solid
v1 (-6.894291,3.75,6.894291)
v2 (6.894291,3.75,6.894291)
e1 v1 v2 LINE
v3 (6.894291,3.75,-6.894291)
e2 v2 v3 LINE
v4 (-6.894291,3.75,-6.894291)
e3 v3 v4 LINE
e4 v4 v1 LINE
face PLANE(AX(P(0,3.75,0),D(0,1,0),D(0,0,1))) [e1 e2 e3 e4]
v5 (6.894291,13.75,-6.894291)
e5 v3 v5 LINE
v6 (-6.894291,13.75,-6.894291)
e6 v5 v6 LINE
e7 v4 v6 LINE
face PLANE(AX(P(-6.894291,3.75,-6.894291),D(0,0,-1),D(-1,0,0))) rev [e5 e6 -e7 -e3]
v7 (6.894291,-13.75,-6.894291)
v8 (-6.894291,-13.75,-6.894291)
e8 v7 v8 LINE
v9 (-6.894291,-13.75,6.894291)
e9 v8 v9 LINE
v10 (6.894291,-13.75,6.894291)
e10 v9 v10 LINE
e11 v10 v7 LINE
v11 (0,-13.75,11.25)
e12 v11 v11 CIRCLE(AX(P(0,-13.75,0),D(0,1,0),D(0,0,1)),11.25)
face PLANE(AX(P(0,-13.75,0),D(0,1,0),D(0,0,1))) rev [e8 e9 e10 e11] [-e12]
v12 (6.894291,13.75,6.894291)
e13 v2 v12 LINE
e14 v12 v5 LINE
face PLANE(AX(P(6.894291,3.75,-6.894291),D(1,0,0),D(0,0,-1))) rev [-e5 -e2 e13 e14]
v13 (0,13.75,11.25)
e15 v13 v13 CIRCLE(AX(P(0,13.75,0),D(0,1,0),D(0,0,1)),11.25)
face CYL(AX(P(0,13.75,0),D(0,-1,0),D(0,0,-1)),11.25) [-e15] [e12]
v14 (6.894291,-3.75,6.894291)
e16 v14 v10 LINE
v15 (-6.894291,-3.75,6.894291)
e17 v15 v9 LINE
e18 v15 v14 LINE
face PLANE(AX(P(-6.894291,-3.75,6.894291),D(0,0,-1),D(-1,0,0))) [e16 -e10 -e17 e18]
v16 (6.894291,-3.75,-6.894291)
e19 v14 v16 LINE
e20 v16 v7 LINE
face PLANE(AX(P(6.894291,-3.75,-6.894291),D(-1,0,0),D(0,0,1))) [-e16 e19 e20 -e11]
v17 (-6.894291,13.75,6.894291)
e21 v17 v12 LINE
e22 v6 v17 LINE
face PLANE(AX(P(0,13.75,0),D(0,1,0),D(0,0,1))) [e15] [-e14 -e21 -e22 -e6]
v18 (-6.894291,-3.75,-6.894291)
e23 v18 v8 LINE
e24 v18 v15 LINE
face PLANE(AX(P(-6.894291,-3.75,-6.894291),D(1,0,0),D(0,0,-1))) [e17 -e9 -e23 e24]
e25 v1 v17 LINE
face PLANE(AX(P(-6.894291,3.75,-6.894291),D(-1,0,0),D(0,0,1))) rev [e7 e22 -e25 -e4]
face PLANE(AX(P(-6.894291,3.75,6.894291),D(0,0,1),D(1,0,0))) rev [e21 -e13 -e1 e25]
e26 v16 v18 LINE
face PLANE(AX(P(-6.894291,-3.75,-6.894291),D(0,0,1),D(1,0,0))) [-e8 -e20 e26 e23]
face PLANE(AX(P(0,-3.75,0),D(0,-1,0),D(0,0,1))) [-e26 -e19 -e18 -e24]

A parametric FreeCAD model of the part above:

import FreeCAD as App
import Part
import Sketcher
from FreeCAD import Vector


def add_polygon(sketch, points):
    """Adds a closed chain of lines whose ends are joined by coincident constraints."""
    first, n = sketch.GeometryCount, len(points)
    for a, b in zip(points, points[1:] + points[:1]):
        sketch.addGeometry(Part.LineSegment(App.Vector(*a, 0), App.Vector(*b, 0)), False)
    for i in range(n):
        sketch.addConstraint(Sketcher.Constraint("Coincident", first + i, 2, first + (i + 1) % n, 1))

doc = App.newDocument("Part")
body = doc.addObject("PartDesign::Body", "Body")

# Sketch on XZ plane
sketch1 = body.newObject("Sketcher::SketchObject", "Sketch")
sketch1.AttachmentSupport = (doc.getObject("XZ_Plane"), [""])
sketch1.MapMode = "FlatFace"
sketch1.addGeometry(Part.Circle(Vector(0, 0, 0), Vector(0, 0, 1), 11.25), False)
sketch1.addConstraint(Sketcher.Constraint("Coincident", 0, 3, -1, 1))
sketch1.addConstraint(Sketcher.Constraint("Diameter", 0, 22.5))
pad1 = body.newObject("PartDesign::Pad", "Pad")
pad1.Profile = sketch1
pad1.Length = 27.5
pad1.Midplane = True

# Sketch on XZ plane
sketch2 = body.newObject("Sketcher::SketchObject", "Sketch001")
sketch2.AttachmentSupport = (doc.getObject("XZ_Plane"), [""])
sketch2.MapMode = "FlatFace"
sketch2.AttachmentOffset = App.Placement(Vector(0, 0, -13.75), App.Rotation())
add_polygon(sketch2, [(-6.894291, -6.894291), (-6.894291, 6.894291), (6.894291, 6.894291), (6.894291, -6.894291)])  # lines 0-3
sketch2.addConstraint(Sketcher.Constraint("Vertical", 0))
sketch2.addConstraint(Sketcher.Constraint("Horizontal", 1))
sketch2.addConstraint(Sketcher.Constraint("Vertical", 2))
sketch2.addConstraint(Sketcher.Constraint("Horizontal", 3))
sketch2.addConstraint(Sketcher.Constraint("Symmetric", 0, 2, 2, 2, -1, 1))
sketch2.addConstraint(Sketcher.Constraint("Equal", 3, 0))
sketch2.addConstraint(Sketcher.Constraint("DistanceX", 1, 1, 1, 2, 13.788582))
pocket1 = body.newObject("PartDesign::Pocket", "Pocket")
pocket1.Profile = sketch2
pocket1.Length = 10
pocket1.Reversed = True
doc.recompute()

mirrored = body.newObject("PartDesign::Mirrored", "Mirrored")
mirrored.Originals = [pocket1]
mirrored.MirrorPlane = (doc.getObject("XZ_Plane"), [""])
body.Tip = mirrored

doc.recompute()
